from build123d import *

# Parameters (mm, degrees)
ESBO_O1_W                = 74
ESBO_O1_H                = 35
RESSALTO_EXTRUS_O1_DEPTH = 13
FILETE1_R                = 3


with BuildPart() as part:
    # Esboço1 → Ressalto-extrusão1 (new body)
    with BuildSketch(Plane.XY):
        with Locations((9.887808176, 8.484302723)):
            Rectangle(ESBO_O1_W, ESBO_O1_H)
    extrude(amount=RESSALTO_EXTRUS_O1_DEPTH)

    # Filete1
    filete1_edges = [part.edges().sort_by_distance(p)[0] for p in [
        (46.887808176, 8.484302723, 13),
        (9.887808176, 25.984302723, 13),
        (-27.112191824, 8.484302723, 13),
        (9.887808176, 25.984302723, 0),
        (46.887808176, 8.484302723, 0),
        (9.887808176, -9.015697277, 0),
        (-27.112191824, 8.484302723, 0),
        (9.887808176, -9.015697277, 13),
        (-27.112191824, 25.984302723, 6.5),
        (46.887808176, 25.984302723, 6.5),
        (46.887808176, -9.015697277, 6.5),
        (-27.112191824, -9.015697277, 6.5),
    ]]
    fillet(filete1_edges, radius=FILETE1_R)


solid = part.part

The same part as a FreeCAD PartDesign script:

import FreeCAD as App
import Part
import Sketcher

V = App.Vector
Q = App.Units.Quantity

doc = App.newDocument("Part")
params = doc.addObject("Spreadsheet::Sheet", "Params")
for row, (alias, value) in enumerate([
    ("sketch1_width", "74 mm"),
    ("sketch1_height", "35 mm"),
    ("pad1_length", "13 mm"),
    ("fillet_radius", "3 mm"),
], start=1):
    params.set(f"A{row}", alias)
    params.set(f"B{row}", "=" + value)
    params.setAlias(f"B{row}", alias)

body = doc.addObject("PartDesign::Body", "Body")

# Sketch on XY plane
sketch1 = body.newObject("Sketcher::SketchObject", "Sketch")
sketch1.AttachmentSupport = (doc.getObject("XY_Plane"), [""])
sketch1.MapMode = "FlatFace"
sketch1.addGeometry([
    Part.LineSegment(V(-27, 26, 0), V(-27, -9, 0)),
    Part.LineSegment(V(-27, -9, 0), V(47, -9, 0)),
    Part.LineSegment(V(47, -9, 0), V(47, 26, 0)),
    Part.LineSegment(V(47, 26, 0), V(-27, 26, 0)),
], False)
sketch1.addConstraint([
    Sketcher.Constraint("Coincident", 0, 2, 1, 1),
    Sketcher.Constraint("Coincident", 1, 2, 2, 1),
    Sketcher.Constraint("Coincident", 2, 2, 3, 1),
    Sketcher.Constraint("Coincident", 3, 2, 0, 1),
    Sketcher.Constraint("Vertical", 0),
    Sketcher.Constraint("Horizontal", 1),
    Sketcher.Constraint("Vertical", 2),
    Sketcher.Constraint("Horizontal", 3),
    Sketcher.Constraint("DistanceX", 1, 1, 1, 2, Q("74 mm")),
    Sketcher.Constraint("DistanceY", 0, 2, 0, 1, Q("35 mm")),
    Sketcher.Constraint("DistanceX", 0, 2, -1, 1, Q("27.112192 mm")),
    Sketcher.Constraint("DistanceY", 0, 2, -1, 1, Q("9.015697 mm")),
])
sketch1.setExpression("Constraints[8]", "Params.sketch1_width")
sketch1.setExpression("Constraints[9]", "Params.sketch1_height")
pad1 = body.newObject("PartDesign::Pad", "Pad")
pad1.Profile = sketch1
pad1.setExpression("Length", "Params.pad1_length")
doc.recompute()

fillet = body.newObject("PartDesign::Fillet", "Fillet")
fillet.Base = (pad1, ["Edge1"])
fillet.UseAllEdges = True
fillet.setExpression("Radius", "Params.fillet_radius")

doc.recompute()
